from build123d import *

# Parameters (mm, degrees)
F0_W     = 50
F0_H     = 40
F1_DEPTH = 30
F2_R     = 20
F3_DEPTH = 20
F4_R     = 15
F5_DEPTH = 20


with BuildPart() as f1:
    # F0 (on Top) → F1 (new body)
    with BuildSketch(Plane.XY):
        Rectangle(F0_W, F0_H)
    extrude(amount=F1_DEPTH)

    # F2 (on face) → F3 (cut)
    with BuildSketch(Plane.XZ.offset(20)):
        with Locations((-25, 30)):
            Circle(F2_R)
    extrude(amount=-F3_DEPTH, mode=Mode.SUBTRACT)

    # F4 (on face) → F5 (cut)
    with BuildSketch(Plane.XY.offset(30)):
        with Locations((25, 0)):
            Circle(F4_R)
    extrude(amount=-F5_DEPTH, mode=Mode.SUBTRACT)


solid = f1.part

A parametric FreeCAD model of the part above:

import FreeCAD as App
import Part
import Sketcher
Q = App.Units.Quantity


def add_polygon(sketch, points):
    """Adds a closed chain of lines whose ends are joined by coincident constraints."""
    first, n = sketch.GeometryCount, len(points)
    for a, b in zip(points, points[1:] + points[:1]):
        sketch.addGeometry(Part.LineSegment(App.Vector(*a, 0), App.Vector(*b, 0)), False)
    for i in range(n):
        sketch.addConstraint(Sketcher.Constraint("Coincident", first + i, 2, first + (i + 1) % n, 1))

doc = App.newDocument("Part")
body = doc.addObject("PartDesign::Body", "Body")

sketch1 = doc.addObject("Sketcher::SketchObject", "Sketch")
body.addObject(sketch1)
sketch1.AttachmentSupport = (doc.XY_Plane, [""])
sketch1.MapMode = "FlatFace"
add_polygon(sketch1, [(-25, 20), (-25, -20), (25, -20), (25, 20)])
sketch1.addConstraint([
    Sketcher.Constraint("Vertical", 0),
    Sketcher.Constraint("Horizontal", 1),
    Sketcher.Constraint("Vertical", 2),
    Sketcher.Constraint("Horizontal", 3),
    Sketcher.Constraint("Symmetric", 0, 2, 2, 2, -1, 1),
    Sketcher.Constraint("DistanceX", 1, 1, 1, 2, Q("50 mm")),
    Sketcher.Constraint("DistanceY", 0, 2, 0, 1, Q("40 mm")),
])
pad1 = doc.addObject("PartDesign::Pad", "Pad")
body.addObject(pad1)
pad1.Profile = sketch1
pad1.Length = 30

sketch2 = doc.addObject("Sketcher::SketchObject", "Sketch001")
body.addObject(sketch2)
sketch2.AttachmentSupport = (doc.XZ_Plane, [""])
sketch2.MapMode = "FlatFace"
sketch2.AttachmentOffset = App.Placement(App.Vector(0, 0, 20), App.Rotation())
sketch2.addGeometry(Part.Circle(App.Vector(-25, 30, 0), App.Vector(0, 0, 1), 20), False)
sketch2.addConstraint([
    Sketcher.Constraint("Diameter", 0, Q("40 mm")),
    Sketcher.Constraint("DistanceX", 0, 3, -1, 1, Q("25 mm")),
    Sketcher.Constraint("DistanceY", -1, 1, 0, 3, Q("30 mm")),
])
pocket1 = doc.addObject("PartDesign::Pocket", "Pocket")
body.addObject(pocket1)
pocket1.Profile = sketch2
pocket1.Length = 20

sketch3 = doc.addObject("Sketcher::SketchObject", "Sketch002")
body.addObject(sketch3)
sketch3.AttachmentSupport = (doc.XY_Plane, [""])
sketch3.MapMode = "FlatFace"
sketch3.AttachmentOffset = App.Placement(App.Vector(0, 0, 30), App.Rotation())
sketch3.addGeometry(Part.Circle(App.Vector(25, 0, 0), App.Vector(0, 0, 1), 15), False)
sketch3.addConstraint([
    Sketcher.Constraint("PointOnObject", 0, 3, -1),
    Sketcher.Constraint("Diameter", 0, Q("30 mm")),
    Sketcher.Constraint("DistanceX", -1, 1, 0, 3, Q("25 mm")),
])
pocket2 = doc.addObject("PartDesign::Pocket", "Pocket001")
body.addObject(pocket2)
pocket2.Profile = sketch3
pocket2.Length = 20

doc.recompute()
